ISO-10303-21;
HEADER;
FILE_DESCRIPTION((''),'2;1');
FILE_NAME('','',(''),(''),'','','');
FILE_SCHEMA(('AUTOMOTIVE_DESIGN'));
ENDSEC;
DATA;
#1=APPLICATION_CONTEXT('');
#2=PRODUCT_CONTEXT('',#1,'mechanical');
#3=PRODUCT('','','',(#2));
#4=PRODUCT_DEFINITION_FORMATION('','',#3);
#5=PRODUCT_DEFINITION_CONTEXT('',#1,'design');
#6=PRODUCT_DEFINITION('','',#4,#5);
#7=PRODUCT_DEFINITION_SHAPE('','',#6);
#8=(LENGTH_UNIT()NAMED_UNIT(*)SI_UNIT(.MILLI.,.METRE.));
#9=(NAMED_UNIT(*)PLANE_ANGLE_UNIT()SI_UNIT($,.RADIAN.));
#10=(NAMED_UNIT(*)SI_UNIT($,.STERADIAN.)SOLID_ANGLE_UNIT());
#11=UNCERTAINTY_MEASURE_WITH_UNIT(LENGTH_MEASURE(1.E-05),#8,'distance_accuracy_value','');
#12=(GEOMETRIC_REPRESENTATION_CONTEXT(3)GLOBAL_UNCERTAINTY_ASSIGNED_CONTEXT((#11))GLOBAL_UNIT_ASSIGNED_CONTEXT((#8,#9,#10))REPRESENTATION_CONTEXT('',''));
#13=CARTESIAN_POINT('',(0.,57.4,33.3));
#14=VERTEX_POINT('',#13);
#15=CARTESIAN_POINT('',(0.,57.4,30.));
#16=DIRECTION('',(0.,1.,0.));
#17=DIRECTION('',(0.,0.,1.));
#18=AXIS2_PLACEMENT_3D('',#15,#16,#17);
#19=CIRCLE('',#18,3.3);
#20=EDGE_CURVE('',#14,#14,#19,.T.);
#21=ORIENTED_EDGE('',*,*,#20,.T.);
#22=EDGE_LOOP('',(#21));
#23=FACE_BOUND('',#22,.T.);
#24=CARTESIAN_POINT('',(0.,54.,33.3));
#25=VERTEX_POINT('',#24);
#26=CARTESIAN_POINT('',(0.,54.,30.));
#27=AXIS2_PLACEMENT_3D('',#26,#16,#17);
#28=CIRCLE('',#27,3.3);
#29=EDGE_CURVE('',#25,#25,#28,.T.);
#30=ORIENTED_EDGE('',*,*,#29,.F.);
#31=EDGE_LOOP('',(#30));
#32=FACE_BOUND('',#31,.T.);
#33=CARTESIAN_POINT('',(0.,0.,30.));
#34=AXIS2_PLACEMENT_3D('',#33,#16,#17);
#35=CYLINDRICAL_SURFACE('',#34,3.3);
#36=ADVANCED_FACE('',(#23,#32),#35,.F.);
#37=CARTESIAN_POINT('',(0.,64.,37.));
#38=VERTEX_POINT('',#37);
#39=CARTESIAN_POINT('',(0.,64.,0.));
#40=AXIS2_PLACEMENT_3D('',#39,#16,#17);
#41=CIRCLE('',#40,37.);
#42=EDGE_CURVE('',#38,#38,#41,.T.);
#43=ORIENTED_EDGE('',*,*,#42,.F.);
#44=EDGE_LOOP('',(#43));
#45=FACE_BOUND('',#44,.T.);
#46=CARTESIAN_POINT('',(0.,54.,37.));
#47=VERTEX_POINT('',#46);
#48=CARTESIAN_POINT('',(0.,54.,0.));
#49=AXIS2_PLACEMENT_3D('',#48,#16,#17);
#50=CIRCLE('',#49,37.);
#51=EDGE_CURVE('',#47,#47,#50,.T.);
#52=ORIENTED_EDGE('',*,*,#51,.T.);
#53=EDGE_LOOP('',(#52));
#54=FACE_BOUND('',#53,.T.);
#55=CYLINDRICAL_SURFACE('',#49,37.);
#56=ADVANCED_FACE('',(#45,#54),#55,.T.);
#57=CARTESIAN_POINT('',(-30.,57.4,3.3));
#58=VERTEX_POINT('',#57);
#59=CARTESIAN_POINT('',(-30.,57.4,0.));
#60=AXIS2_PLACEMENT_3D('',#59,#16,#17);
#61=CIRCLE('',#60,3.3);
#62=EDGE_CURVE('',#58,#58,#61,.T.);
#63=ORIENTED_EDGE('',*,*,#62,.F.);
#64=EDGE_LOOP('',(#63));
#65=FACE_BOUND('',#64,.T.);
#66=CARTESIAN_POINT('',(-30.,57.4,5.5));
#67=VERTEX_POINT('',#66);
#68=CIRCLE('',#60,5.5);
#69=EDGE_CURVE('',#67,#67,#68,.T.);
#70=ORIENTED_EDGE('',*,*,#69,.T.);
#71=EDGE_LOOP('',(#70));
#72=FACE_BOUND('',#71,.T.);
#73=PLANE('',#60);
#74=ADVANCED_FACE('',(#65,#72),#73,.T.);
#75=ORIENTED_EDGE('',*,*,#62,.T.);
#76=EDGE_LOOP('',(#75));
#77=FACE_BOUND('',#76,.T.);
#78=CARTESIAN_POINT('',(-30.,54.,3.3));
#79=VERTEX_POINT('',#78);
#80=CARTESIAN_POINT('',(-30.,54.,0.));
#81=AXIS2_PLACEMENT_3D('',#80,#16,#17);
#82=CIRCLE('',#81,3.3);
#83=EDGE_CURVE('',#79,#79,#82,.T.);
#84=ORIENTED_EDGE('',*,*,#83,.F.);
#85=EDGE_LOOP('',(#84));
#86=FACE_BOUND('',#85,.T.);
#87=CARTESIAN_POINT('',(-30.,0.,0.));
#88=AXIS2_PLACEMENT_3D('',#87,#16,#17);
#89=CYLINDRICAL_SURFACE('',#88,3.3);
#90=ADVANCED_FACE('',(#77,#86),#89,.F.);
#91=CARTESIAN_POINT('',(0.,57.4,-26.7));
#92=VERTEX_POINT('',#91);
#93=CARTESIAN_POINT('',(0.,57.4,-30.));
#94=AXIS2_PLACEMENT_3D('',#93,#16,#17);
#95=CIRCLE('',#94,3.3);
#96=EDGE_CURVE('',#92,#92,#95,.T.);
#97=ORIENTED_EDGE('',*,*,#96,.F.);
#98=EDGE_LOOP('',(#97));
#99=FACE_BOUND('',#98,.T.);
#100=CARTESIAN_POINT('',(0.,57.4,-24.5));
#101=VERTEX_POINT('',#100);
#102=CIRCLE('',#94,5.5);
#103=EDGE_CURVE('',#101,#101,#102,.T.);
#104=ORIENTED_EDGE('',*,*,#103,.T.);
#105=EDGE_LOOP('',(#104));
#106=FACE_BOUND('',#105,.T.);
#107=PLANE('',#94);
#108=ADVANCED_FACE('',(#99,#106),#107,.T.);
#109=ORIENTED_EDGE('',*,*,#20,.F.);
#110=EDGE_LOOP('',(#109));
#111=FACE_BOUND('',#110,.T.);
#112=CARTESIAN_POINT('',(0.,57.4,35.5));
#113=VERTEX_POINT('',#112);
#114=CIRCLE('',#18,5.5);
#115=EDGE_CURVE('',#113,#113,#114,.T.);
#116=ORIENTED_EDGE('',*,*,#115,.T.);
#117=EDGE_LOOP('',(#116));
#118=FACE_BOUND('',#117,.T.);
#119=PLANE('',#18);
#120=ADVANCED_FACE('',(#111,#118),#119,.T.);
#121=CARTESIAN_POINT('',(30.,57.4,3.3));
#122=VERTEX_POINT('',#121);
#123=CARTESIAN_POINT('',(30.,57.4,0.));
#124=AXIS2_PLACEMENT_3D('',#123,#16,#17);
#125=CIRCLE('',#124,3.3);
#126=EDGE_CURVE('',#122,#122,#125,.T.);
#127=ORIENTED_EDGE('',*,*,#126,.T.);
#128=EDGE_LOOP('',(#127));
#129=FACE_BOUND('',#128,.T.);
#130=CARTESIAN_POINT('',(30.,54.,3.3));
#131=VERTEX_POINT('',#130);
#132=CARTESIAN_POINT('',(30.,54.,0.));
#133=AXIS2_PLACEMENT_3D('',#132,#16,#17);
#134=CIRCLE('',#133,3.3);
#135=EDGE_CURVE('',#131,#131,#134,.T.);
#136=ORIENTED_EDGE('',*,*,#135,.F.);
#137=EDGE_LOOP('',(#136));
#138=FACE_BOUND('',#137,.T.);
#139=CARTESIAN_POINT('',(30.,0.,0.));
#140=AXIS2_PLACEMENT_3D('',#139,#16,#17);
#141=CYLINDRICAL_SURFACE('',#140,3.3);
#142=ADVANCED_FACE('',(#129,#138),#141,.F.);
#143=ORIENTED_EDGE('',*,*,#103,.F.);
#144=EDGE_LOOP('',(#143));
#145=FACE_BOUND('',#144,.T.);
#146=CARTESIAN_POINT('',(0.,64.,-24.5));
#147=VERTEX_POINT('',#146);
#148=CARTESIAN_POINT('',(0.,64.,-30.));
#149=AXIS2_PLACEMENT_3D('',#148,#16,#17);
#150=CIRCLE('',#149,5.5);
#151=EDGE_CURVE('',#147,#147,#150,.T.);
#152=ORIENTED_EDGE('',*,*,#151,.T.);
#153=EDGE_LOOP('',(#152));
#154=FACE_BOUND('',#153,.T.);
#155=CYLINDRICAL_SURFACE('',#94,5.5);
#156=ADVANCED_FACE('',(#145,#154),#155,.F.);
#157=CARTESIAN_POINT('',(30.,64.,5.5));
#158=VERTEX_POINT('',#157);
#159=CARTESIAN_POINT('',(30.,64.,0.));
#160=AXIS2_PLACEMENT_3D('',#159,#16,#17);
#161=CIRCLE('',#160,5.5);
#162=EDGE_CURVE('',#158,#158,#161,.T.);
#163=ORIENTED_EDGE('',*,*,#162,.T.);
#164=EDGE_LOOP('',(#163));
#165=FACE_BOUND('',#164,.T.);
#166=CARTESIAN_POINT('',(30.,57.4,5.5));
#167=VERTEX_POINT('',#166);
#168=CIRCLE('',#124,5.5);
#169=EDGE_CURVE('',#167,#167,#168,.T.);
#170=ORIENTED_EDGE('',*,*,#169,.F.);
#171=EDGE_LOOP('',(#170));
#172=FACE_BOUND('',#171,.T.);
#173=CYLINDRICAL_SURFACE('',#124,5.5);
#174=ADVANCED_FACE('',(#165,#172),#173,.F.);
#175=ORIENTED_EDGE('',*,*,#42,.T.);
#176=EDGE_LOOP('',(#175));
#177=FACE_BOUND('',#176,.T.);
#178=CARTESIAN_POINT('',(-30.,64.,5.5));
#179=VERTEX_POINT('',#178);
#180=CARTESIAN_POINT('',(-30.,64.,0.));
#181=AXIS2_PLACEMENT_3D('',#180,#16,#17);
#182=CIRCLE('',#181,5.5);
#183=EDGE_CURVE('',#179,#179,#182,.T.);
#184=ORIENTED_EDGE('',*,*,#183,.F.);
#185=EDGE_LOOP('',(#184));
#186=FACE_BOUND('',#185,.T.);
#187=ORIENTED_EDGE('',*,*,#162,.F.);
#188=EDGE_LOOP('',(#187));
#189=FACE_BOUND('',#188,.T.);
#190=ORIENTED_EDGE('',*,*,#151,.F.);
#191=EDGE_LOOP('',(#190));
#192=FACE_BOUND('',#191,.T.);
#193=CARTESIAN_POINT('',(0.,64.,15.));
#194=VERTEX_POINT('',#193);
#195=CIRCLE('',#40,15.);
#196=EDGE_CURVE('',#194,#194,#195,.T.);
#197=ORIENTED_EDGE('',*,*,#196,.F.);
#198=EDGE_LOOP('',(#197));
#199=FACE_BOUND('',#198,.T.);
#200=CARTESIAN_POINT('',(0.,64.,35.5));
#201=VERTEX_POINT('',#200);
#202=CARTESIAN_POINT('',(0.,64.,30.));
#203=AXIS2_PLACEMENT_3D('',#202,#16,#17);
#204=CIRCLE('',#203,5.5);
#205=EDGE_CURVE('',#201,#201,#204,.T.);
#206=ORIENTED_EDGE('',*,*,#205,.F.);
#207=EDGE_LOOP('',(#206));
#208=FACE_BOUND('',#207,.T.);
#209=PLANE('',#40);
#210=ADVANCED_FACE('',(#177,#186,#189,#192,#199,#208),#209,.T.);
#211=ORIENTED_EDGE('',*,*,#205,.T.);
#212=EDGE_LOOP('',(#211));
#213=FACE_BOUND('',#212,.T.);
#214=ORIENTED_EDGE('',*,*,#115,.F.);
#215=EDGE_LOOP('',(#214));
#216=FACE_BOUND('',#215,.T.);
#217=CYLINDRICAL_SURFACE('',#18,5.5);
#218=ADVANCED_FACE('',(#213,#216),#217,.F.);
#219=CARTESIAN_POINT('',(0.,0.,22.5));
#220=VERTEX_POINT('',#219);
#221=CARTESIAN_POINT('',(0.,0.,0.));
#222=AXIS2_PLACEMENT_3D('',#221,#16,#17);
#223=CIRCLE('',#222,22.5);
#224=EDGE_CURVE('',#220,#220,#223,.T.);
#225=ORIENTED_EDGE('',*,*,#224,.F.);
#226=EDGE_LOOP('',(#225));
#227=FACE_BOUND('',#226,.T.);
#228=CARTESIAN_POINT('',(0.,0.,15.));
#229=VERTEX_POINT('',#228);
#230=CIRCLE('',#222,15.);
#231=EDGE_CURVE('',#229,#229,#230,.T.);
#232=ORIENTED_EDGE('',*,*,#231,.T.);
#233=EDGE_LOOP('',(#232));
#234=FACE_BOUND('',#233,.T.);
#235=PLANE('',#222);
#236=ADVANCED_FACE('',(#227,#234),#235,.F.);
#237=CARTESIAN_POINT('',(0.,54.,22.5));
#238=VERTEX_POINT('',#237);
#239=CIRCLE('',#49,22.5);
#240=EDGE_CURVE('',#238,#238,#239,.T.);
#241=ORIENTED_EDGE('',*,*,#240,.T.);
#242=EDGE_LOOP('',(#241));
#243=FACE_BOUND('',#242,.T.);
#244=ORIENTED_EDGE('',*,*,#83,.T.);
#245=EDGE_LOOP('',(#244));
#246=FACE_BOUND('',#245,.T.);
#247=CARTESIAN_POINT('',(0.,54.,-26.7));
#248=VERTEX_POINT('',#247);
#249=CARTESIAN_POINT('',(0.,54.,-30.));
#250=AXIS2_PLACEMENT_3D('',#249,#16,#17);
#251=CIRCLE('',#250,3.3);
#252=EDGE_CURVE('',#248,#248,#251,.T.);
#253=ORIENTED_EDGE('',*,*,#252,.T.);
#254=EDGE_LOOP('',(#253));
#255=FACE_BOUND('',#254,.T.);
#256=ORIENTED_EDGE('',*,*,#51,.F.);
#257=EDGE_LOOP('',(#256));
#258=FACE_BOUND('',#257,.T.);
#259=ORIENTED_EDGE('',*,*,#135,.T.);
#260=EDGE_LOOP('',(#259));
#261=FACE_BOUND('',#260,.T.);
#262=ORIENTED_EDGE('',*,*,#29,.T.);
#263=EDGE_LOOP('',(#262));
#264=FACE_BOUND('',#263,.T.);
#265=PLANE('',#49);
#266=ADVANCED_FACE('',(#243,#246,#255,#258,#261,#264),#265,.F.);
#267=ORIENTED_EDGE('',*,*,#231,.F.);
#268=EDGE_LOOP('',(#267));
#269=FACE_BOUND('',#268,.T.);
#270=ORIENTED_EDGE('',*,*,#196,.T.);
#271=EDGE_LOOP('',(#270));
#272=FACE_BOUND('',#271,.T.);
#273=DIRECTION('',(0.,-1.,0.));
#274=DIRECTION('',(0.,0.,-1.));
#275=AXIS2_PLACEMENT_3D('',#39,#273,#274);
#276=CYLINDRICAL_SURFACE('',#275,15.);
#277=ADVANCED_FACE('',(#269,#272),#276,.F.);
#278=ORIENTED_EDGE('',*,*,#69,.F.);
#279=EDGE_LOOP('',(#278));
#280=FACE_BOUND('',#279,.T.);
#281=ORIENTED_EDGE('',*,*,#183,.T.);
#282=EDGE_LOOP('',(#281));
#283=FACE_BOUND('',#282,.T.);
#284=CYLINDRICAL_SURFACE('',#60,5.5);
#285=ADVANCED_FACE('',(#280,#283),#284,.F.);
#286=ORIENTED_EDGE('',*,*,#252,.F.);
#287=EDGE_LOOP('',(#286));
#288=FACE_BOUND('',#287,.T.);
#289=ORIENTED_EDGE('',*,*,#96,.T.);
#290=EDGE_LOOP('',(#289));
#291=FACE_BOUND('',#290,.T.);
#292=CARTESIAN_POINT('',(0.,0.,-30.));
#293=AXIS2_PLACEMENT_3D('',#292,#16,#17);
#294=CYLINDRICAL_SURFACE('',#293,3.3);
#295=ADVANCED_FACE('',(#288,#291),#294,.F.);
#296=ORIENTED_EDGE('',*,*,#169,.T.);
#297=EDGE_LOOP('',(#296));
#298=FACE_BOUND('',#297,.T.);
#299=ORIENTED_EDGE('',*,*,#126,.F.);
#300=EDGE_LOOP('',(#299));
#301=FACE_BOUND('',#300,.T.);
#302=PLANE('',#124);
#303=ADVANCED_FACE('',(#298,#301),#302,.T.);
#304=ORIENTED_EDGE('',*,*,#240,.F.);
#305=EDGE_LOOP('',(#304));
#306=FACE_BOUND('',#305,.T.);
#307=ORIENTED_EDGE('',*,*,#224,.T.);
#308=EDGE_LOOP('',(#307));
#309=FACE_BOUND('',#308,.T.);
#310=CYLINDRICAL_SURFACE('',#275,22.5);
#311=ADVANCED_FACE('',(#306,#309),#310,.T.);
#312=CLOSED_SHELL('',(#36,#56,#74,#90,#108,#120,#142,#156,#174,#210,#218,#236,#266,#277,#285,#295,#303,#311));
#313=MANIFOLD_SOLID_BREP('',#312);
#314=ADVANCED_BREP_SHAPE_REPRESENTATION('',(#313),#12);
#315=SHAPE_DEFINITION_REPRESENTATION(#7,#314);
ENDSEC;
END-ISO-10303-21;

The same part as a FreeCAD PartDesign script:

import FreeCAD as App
import Part
import Sketcher
Q = App.Units.Quantity

doc = App.newDocument("Part")
body = doc.addObject("PartDesign::Body", "Body")

sketch1 = body.newObject("Sketcher::SketchObject", "Sketch")
sketch1.AttachmentSupport = (doc.getObject("XZ_Plane"), [""])
sketch1.MapMode = "FlatFace"
sketch1.addGeometry([
    Part.Circle(App.Vector(0, 0, 0), App.Vector(0, 0, 1), 22),
    Part.Circle(App.Vector(0, 0, 0), App.Vector(0, 0, 1), 15),
], False)
sketch1.addConstraint([
    Sketcher.Constraint("Coincident", 0, 3, -1, 1),
    Sketcher.Constraint("Coincident", 1, 3, -1, 1),
    Sketcher.Constraint("Diameter", 0, Q("45 mm")),
    Sketcher.Constraint("Diameter", 1, Q("30 mm")),
])
pad1 = body.newObject("PartDesign::Pad", "Pad")
pad1.Profile = sketch1
pad1.Length = 64
pad1.Reversed = True

sketch2 = body.newObject("Sketcher::SketchObject", "Sketch001")
sketch2.AttachmentSupport = (doc.getObject("XZ_Plane"), [""])
sketch2.MapMode = "FlatFace"
sketch2.AttachmentOffset = App.Placement(App.Vector(0, 0, -64), App.Rotation())
sketch2.addGeometry([
    Part.Circle(App.Vector(0, 0, 0), App.Vector(0, 0, 1), 37),
    Part.Circle(App.Vector(0, 0, 0), App.Vector(0, 0, 1), 22),
], False)
sketch2.addConstraint([
    Sketcher.Constraint("Coincident", 0, 3, -1, 1),
    Sketcher.Constraint("Coincident", 1, 3, -1, 1),
    Sketcher.Constraint("Diameter", 0, Q("74 mm")),
    Sketcher.Constraint("Diameter", 1, Q("45 mm")),
])
pad2 = body.newObject("PartDesign::Pad", "Pad001")
pad2.Profile = sketch2
pad2.Length = 10

sketch3 = body.newObject("Sketcher::SketchObject", "Sketch002")
sketch3.AttachmentSupport = (doc.getObject("XZ_Plane"), [""])
sketch3.MapMode = "FlatFace"
sketch3.AttachmentOffset = App.Placement(App.Vector(0, 0, -64), App.Rotation())
sketch3.addGeometry([
    Part.Circle(App.Vector(0, -30, 0), App.Vector(0, 0, 1), 6),
    Part.Circle(App.Vector(30, 0, 0), App.Vector(0, 0, 1), 6),
    Part.Circle(App.Vector(0, 30, 0), App.Vector(0, 0, 1), 6),
    Part.Circle(App.Vector(-30, 0, 0), App.Vector(0, 0, 1), 6),
], False)
sketch3.addConstraint([
    Sketcher.Constraint("Equal", 0, 1),
    Sketcher.Constraint("Equal", 1, 2),
    Sketcher.Constraint("Equal", 2, 3),
    Sketcher.Constraint("Symmetric", 0, 3, 2, 3, -1, 1),
    Sketcher.Constraint("Symmetric", 1, 3, 3, 3, -1, 1),
    Sketcher.Constraint("PointOnObject", 0, 3, -2),
    Sketcher.Constraint("PointOnObject", 1, 3, -1),
    Sketcher.Constraint("Diameter", 0, Q("11 mm")),
    Sketcher.Constraint("DistanceY", 0, 3, -1, 1, Q("30 mm")),
    Sketcher.Constraint("DistanceX", -1, 1, 1, 3, Q("30 mm")),
])
pocket1 = body.newObject("PartDesign::Pocket", "Pocket")
pocket1.Profile = sketch3
pocket1.Length = 6.6
pocket1.Reversed = True

sketch4 = body.newObject("Sketcher::SketchObject", "Sketch003")
sketch4.AttachmentSupport = (doc.getObject("XZ_Plane"), [""])
sketch4.MapMode = "FlatFace"
sketch4.AttachmentOffset = App.Placement(App.Vector(0, 0, -64), App.Rotation())
sketch4.addGeometry([
    Part.Circle(App.Vector(0, -30, 0), App.Vector(0, 0, 1), 3.3),
    Part.Circle(App.Vector(30, 0, 0), App.Vector(0, 0, 1), 3.3),
    Part.Circle(App.Vector(0, 30, 0), App.Vector(0, 0, 1), 3.3),
    Part.Circle(App.Vector(-30, 0, 0), App.Vector(0, 0, 1), 3.3),
], False)
sketch4.addConstraint([
    Sketcher.Constraint("Equal", 0, 1),
    Sketcher.Constraint("Equal", 1, 2),
    Sketcher.Constraint("Equal", 2, 3),
    Sketcher.Constraint("Symmetric", 0, 3, 2, 3, -1, 1),
    Sketcher.Constraint("Symmetric", 1, 3, 3, 3, -1, 1),
    Sketcher.Constraint("PointOnObject", 0, 3, -2),
    Sketcher.Constraint("PointOnObject", 1, 3, -1),
    Sketcher.Constraint("Diameter", 0, Q("6.6 mm")),
    Sketcher.Constraint("DistanceY", 0, 3, -1, 1, Q("30 mm")),
    Sketcher.Constraint("DistanceX", -1, 1, 1, 3, Q("30 mm")),
])
pocket2 = body.newObject("PartDesign::Pocket", "Pocket001")
pocket2.Profile = sketch4
pocket2.Type = "ThroughAll"
pocket2.Reversed = True

doc.recompute()
